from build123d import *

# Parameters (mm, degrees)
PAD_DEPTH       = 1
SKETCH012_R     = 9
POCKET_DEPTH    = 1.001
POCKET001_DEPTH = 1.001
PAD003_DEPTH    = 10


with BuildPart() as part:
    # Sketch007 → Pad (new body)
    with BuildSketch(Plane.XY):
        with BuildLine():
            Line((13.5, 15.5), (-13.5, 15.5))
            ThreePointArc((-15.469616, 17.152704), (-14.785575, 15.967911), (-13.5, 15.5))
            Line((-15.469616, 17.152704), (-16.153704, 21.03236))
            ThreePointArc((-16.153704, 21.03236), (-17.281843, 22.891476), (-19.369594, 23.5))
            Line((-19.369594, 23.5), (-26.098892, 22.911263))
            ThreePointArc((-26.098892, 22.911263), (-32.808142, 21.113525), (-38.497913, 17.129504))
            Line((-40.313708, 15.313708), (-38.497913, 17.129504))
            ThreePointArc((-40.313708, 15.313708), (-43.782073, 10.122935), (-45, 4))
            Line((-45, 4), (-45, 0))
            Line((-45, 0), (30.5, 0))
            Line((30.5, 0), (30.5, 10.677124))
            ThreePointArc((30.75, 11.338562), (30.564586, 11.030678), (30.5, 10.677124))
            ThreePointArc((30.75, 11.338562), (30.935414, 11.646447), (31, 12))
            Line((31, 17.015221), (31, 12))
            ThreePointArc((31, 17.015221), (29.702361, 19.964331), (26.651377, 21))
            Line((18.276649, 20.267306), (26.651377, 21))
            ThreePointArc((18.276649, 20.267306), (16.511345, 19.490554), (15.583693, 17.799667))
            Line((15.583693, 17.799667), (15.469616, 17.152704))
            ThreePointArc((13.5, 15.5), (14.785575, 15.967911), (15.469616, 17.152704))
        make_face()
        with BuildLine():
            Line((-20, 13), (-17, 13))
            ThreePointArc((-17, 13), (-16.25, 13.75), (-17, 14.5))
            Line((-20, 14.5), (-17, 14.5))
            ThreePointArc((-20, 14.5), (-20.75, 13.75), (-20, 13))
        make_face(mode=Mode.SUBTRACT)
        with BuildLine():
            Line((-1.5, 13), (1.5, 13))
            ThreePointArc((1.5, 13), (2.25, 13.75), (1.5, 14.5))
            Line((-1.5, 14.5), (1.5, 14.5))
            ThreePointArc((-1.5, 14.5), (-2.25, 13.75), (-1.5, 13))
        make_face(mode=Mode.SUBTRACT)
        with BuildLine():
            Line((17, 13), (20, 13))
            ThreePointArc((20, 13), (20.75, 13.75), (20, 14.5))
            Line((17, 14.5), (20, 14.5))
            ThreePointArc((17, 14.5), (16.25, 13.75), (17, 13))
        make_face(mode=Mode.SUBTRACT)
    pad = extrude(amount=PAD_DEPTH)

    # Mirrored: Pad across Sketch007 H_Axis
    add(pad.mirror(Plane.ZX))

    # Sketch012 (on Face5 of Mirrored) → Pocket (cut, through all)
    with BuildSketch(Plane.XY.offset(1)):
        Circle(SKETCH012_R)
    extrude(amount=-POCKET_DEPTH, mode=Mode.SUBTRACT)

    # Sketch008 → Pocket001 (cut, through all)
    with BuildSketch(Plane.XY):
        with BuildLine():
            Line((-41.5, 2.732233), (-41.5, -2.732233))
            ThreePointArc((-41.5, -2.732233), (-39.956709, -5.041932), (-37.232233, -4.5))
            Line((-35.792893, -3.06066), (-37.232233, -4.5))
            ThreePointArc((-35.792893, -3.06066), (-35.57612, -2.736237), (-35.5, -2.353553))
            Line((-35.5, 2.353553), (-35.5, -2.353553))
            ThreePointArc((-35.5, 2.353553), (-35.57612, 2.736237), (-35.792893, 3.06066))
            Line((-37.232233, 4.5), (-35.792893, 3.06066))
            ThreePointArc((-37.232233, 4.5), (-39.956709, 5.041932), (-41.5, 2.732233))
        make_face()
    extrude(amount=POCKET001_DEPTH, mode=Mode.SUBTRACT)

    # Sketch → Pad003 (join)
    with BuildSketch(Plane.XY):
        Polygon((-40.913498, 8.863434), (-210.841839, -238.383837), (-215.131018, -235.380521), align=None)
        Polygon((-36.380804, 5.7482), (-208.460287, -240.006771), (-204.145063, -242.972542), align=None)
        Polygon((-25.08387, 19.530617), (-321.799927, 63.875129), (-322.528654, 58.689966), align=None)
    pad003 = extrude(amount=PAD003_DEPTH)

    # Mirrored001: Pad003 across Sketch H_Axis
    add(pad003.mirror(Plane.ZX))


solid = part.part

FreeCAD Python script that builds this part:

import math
import FreeCAD as App
import Part
import Sketcher

V = App.Vector
Q = App.Units.Quantity

doc = App.newDocument("Part")
body = doc.addObject("PartDesign::Body", "Body")

# Sketch on XY plane
sketch1 = doc.addObject("Sketcher::SketchObject", "Sketch")
body.addObject(sketch1)
sketch1.AttachmentSupport = (doc.XY_Plane, [""])
sketch1.MapMode = "FlatFace"
sketch1.addGeometry(Part.LineSegment(V(13.5, 15.5, 0), V(-13.5, 15.5, 0)), False)
sketch1.addGeometry(Part.ArcOfCircle(Part.Circle(V(-13.5, 17.5, 0), V(0, 0, 1), 2), math.radians(-170), math.radians(-90)), False)
sketch1.addGeometry(Part.LineSegment(V(-15.5, 17.2, 0), V(-16.2, 21, 0)), False)
sketch1.addGeometry(Part.ArcOfCircle(Part.Circle(V(-19.1, 20.5, 0), V(0, 0, 1), 3), math.radians(10), math.radians(95)), False)
sketch1.addGeometry(Part.LineSegment(V(-19.4, 23.5, 0), V(-26.1, 22.9, 0)), False)
sketch1.addGeometry(Part.ArcOfCircle(Part.Circle(V(-24.4, 3, 0), V(0, 0, 1), 20), math.radians(95), math.radians(135)), False)
sketch1.addGeometry(Part.LineSegment(V(-38.5, 17.1, 0), V(-40.3, 15.3, 0)), False)
sketch1.addGeometry(Part.ArcOfCircle(Part.Circle(V(-29, 4, 0), V(0, 0, 1), 16), math.radians(135), math.radians(180)), False)
sketch1.addGeometry(Part.LineSegment(V(-45, 4, 0), V(-45, 0, 0)), False)
sketch1.addGeometry(Part.LineSegment(V(-45, 0, 0), V(30.5, 0, 0)), False)
sketch1.addGeometry(Part.LineSegment(V(30.5, 0, 0), V(30.5, 10.7, 0)), False)
sketch1.addGeometry(Part.ArcOfCircle(Part.Circle(V(31.5, 10.7, 0), V(0, 0, 1), 1), math.radians(139), math.radians(180)), False)
sketch1.addGeometry(Part.ArcOfCircle(Part.Circle(V(30, 12, 0), V(0, 0, 1), 1), math.radians(-41), math.radians(0)), False)
sketch1.addGeometry(Part.LineSegment(V(31, 12, 0), V(31, 17, 0)), False)
sketch1.addGeometry(Part.ArcOfCircle(Part.Circle(V(27, 17, 0), V(0, 0, 1), 4), math.radians(0), math.radians(95)), False)
sketch1.addGeometry(Part.LineSegment(V(26.7, 21, 0), V(18.3, 20.3, 0)), False)
sketch1.addGeometry(Part.ArcOfCircle(Part.Circle(V(18.5, 17.3, 0), V(0, 0, 1), 3), math.radians(95), math.radians(170)), False)
sketch1.addGeometry(Part.LineSegment(V(15.6, 17.8, 0), V(15.5, 17.2, 0)), False)
sketch1.addGeometry(Part.ArcOfCircle(Part.Circle(V(13.5, 17.5, 0), V(0, 0, 1), 2), math.radians(-90), math.radians(-10)), False)
sketch1.addGeometry(Part.LineSegment(V(-17, 13, 0), V(-20, 13, 0)), False)
sketch1.addGeometry(Part.ArcOfCircle(Part.Circle(V(-20, 13.8, 0), V(0, 0, 1), 0.8), math.radians(90), math.radians(270)), False)
sketch1.addGeometry(Part.LineSegment(V(-20, 14.5, 0), V(-17, 14.5, 0)), False)
sketch1.addGeometry(Part.ArcOfCircle(Part.Circle(V(-17, 13.8, 0), V(0, 0, 1), 0.8), math.radians(-90), math.radians(90)), False)
sketch1.addGeometry(Part.LineSegment(V(1.5, 13, 0), V(-1.5, 13, 0)), False)
sketch1.addGeometry(Part.ArcOfCircle(Part.Circle(V(-1.5, 13.8, 0), V(0, 0, 1), 0.8), math.radians(90), math.radians(270)), False)
sketch1.addGeometry(Part.LineSegment(V(-1.5, 14.5, 0), V(1.5, 14.5, 0)), False)
sketch1.addGeometry(Part.ArcOfCircle(Part.Circle(V(1.5, 13.8, 0), V(0, 0, 1), 0.8), math.radians(-90), math.radians(90)), False)
sketch1.addGeometry(Part.LineSegment(V(20, 13, 0), V(17, 13, 0)), False)
sketch1.addGeometry(Part.ArcOfCircle(Part.Circle(V(17, 13.8, 0), V(0, 0, 1), 0.8), math.radians(90), math.radians(270)), False)
sketch1.addGeometry(Part.LineSegment(V(17, 14.5, 0), V(20, 14.5, 0)), False)
sketch1.addGeometry(Part.ArcOfCircle(Part.Circle(V(20, 13.8, 0), V(0, 0, 1), 0.8), math.radians(-90), math.radians(90)), False)
sketch1.addConstraint(Sketcher.Constraint("Tangent", 0, 2, 1, 2))
sketch1.addConstraint(Sketcher.Constraint("Tangent", 1, 1, 2, 1))
sketch1.addConstraint(Sketcher.Constraint("Tangent", 2, 2, 3, 1))
sketch1.addConstraint(Sketcher.Constraint("Tangent", 3, 2, 4, 1))
sketch1.addConstraint(Sketcher.Constraint("Tangent", 4, 2, 5, 1))
sketch1.addConstraint(Sketcher.Constraint("Tangent", 5, 2, 6, 1))
sketch1.addConstraint(Sketcher.Constraint("Tangent", 6, 2, 7, 1))
sketch1.addConstraint(Sketcher.Constraint("Tangent", 7, 2, 8, 1))
sketch1.addConstraint(Sketcher.Constraint("Coincident", 8, 2, 9, 1))
sketch1.addConstraint(Sketcher.Constraint("Coincident", 9, 2, 10, 1))
sketch1.addConstraint(Sketcher.Constraint("Tangent", 10, 2, 11, 2))
sketch1.addConstraint(Sketcher.Constraint("Tangent", 11, 1, 12, 1))
sketch1.addConstraint(Sketcher.Constraint("Coincident", 12, 2, 13, 1))
sketch1.addConstraint(Sketcher.Constraint("Tangent", 13, 2, 14, 1))
sketch1.addConstraint(Sketcher.Constraint("Tangent", 14, 2, 15, 1))
sketch1.addConstraint(Sketcher.Constraint("Tangent", 15, 2, 16, 1))
sketch1.addConstraint(Sketcher.Constraint("Tangent", 16, 2, 17, 1))
sketch1.addConstraint(Sketcher.Constraint("Tangent", 17, 2, 18, 2))
sketch1.addConstraint(Sketcher.Constraint("Tangent", 18, 1, 0, 1))
sketch1.addConstraint(Sketcher.Constraint("Tangent", 19, 2, 20, 2))
sketch1.addConstraint(Sketcher.Constraint("Tangent", 20, 1, 21, 1))
sketch1.addConstraint(Sketcher.Constraint("Tangent", 21, 2, 22, 2))
sketch1.addConstraint(Sketcher.Constraint("Tangent", 22, 1, 19, 1))
sketch1.addConstraint(Sketcher.Constraint("Tangent", 23, 2, 24, 2))
sketch1.addConstraint(Sketcher.Constraint("Tangent", 24, 1, 25, 1))
sketch1.addConstraint(Sketcher.Constraint("Tangent", 25, 2, 26, 2))
sketch1.addConstraint(Sketcher.Constraint("Tangent", 26, 1, 23, 1))
sketch1.addConstraint(Sketcher.Constraint("Tangent", 27, 2, 28, 2))
sketch1.addConstraint(Sketcher.Constraint("Tangent", 28, 1, 29, 1))
sketch1.addConstraint(Sketcher.Constraint("Tangent", 29, 2, 30, 2))
sketch1.addConstraint(Sketcher.Constraint("Tangent", 30, 1, 27, 1))
sketch1.addConstraint(Sketcher.Constraint("Horizontal", 0))
sketch1.addConstraint(Sketcher.Constraint("Vertical", 8))
sketch1.addConstraint(Sketcher.Constraint("Horizontal", 9))
sketch1.addConstraint(Sketcher.Constraint("Vertical", 10))
sketch1.addConstraint(Sketcher.Constraint("Vertical", 13))
sketch1.addConstraint(Sketcher.Constraint("Horizontal", 19))
sketch1.addConstraint(Sketcher.Constraint("Horizontal", 21))
sketch1.addConstraint(Sketcher.Constraint("Horizontal", 23))
sketch1.addConstraint(Sketcher.Constraint("Horizontal", 25))
sketch1.addConstraint(Sketcher.Constraint("Horizontal", 27))
sketch1.addConstraint(Sketcher.Constraint("Horizontal", 29))
sketch1.addConstraint(Sketcher.Constraint("Equal", 3, 16))
sketch1.addConstraint(Sketcher.Constraint("Equal", 1, 18))
sketch1.addConstraint(Sketcher.Constraint("Equal", 22, 24))
sketch1.addConstraint(Sketcher.Constraint("Equal", 26, 28))
sketch1.addConstraint(Sketcher.Constraint("Symmetric", 22, 3, 28, 3, -2))
sketch1.addConstraint(Sketcher.Constraint("Symmetric", 1, 1, 17, 2, -2))
sketch1.addConstraint(Sketcher.Constraint("PointOnObject", 8, 2, -1))
sketch1.addConstraint(Sketcher.Constraint("Parallel", 4, 15))
sketch1.addConstraint(Sketcher.Constraint("Horizontal", 22, 3, 24, 3))
sketch1.addConstraint(Sketcher.Constraint("Equal", 21, 23))
sketch1.addConstraint(Sketcher.Constraint("Equal", 25, 27))
sketch1.addConstraint(Sketcher.Constraint("Radius", 1, Q("2.000001 mm")))
sketch1.addConstraint(Sketcher.Constraint("Radius", 3, Q("3 mm")))
sketch1.addConstraint(Sketcher.Constraint("Radius", 14, Q("3.999999 mm")))
sketch1.addConstraint(Sketcher.Constraint("DistanceX", 0, 2, 0, 1, Q("27 mm")))
sketch1.addConstraint(Sketcher.Constraint("DistanceX", 19, 2, 19, 1, Q("3 mm")))
sketch1.addConstraint(Sketcher.Constraint("DistanceY", 8, 2, 8, 1, Q("4 mm")))
sketch1.addConstraint(Sketcher.Constraint("Angle", 2, Q("100 deg")))
sketch1.addConstraint(Sketcher.Constraint("Angle", 4, Q("-175.000002 deg")))
sketch1.addConstraint(Sketcher.Constraint("Angle", 6, Q("-134.999984 deg")))
sketch1.addConstraint(Sketcher.Constraint("Radius", 20, Q("0.75 mm")))
sketch1.addConstraint(Sketcher.Constraint("DistanceX", 9, 1, 9, 2, Q("75.5 mm")))
sketch1.addConstraint(Sketcher.Constraint("DistanceX", -1, 1, 14, 3, Q("27.000001 mm")))
sketch1.addConstraint(Sketcher.Constraint("DistanceX", 20, 3, -1, 1, Q("20 mm")))
sketch1.addConstraint(Sketcher.Constraint("DistanceX", 7, 2, -1, 1, Q("45 mm")))
sketch1.addConstraint(Sketcher.Constraint("DistanceY", -1, 1, 12, 2, Q("12 mm")))
sketch1.addConstraint(Sketcher.Constraint("DistanceY", -1, 1, 14, 2, Q("21 mm")))
sketch1.addConstraint(Sketcher.Constraint("DistanceY", -1, 1, 19, 2, Q("13 mm")))
sketch1.addConstraint(Sketcher.Constraint("DistanceX", 1, 3, 11, 3, Q("45.000002 mm")))
sketch1.addConstraint(Sketcher.Constraint("DistanceY", 7, 3, 12, 3, Q("7.999999 mm")))
sketch1.addConstraint(Sketcher.Constraint("DistanceX", 1, 3, 24, 3, Q("12 mm")))
sketch1.addConstraint(Sketcher.Constraint("DistanceY", 1, 3, 3, 2, Q("5.999999 mm")))
sketch1.addConstraint(Sketcher.Constraint("DistanceY", 24, 1, 0, 2, Q("1 mm")))
sketch1.addConstraint(Sketcher.Constraint("DistanceX", -1, 1, 11, 1, Q("30.75 mm")))
sketch1.addConstraint(Sketcher.Constraint("Radius", 7, Q("15.99999 mm")))
sketch1.addConstraint(Sketcher.Constraint("Radius", 5, Q("19.999997 mm")))
pad1 = doc.addObject("PartDesign::Pad", "Pad")
body.addObject(pad1)
pad1.Profile = sketch1
pad1.Length = 1
doc.recompute()

mirrored = doc.addObject("PartDesign::Mirrored", "Mirrored")
body.addObject(mirrored)
mirrored.Originals = [pad1]
mirrored.MirrorPlane = (doc.XZ_Plane, [""])
body.Tip = mirrored

# Sketch on XY plane
sketch2 = doc.addObject("Sketcher::SketchObject", "Sketch001")
body.addObject(sketch2)
sketch2.AttachmentSupport = (doc.XY_Plane, [""])
sketch2.MapMode = "FlatFace"
sketch2.AttachmentOffset = App.Placement(V(0, 0, 1), App.Rotation())
sketch2.addGeometry(Part.Circle(V(0, 0, 0), V(0, 0, 1), 9), False)
sketch2.addConstraint(Sketcher.Constraint("Coincident", 0, 3, -1, 1))
sketch2.addConstraint(Sketcher.Constraint("Diameter", 0, Q("18 mm")))
pocket1 = doc.addObject("PartDesign::Pocket", "Pocket")
body.addObject(pocket1)
pocket1.Profile = sketch2
pocket1.Type = "ThroughAll"

# Sketch on XY plane
sketch3 = doc.addObject("Sketcher::SketchObject", "Sketch002")
body.addObject(sketch3)
sketch3.AttachmentSupport = (doc.XY_Plane, [""])
sketch3.MapMode = "FlatFace"
sketch3.addGeometry(Part.LineSegment(V(-41.5, 2.7, 0), V(-41.5, -2.7, 0)), False)
sketch3.addGeometry(Part.ArcOfCircle(Part.Circle(V(-39, -2.7, 0), V(0, 0, 1), 2.5), math.radians(180), math.radians(315)), False)
sketch3.addGeometry(Part.LineSegment(V(-37.2, -4.5, 0), V(-35.8, -3.1, 0)), False)
sketch3.addGeometry(Part.ArcOfCircle(Part.Circle(V(-36.5, -2.4, 0), V(0, 0, 1), 1), math.radians(-45), math.radians(0)), False)
sketch3.addGeometry(Part.LineSegment(V(-35.5, -2.4, 0), V(-35.5, 2.4, 0)), False)
sketch3.addGeometry(Part.ArcOfCircle(Part.Circle(V(-36.5, 2.4, 0), V(0, 0, 1), 1), math.radians(0), math.radians(45)), False)
sketch3.addGeometry(Part.LineSegment(V(-35.8, 3.1, 0), V(-37.2, 4.5, 0)), False)
sketch3.addGeometry(Part.ArcOfCircle(Part.Circle(V(-39, 2.7, 0), V(0, 0, 1), 2.5), math.radians(45), math.radians(180)), False)
sketch3.addConstraint(Sketcher.Constraint("Tangent", 0, 2, 1, 1))
sketch3.addConstraint(Sketcher.Constraint("Tangent", 1, 2, 2, 1))
sketch3.addConstraint(Sketcher.Constraint("Coincident", 2, 2, 3, 1))
sketch3.addConstraint(Sketcher.Constraint("Coincident", 3, 2, 4, 1))
sketch3.addConstraint(Sketcher.Constraint("Coincident", 4, 2, 5, 1))
sketch3.addConstraint(Sketcher.Constraint("Coincident", 5, 2, 6, 1))
sketch3.addConstraint(Sketcher.Constraint("Tangent", 6, 2, 7, 1))
sketch3.addConstraint(Sketcher.Constraint("Tangent", 7, 2, 0, 1))
sketch3.addConstraint(Sketcher.Constraint("Vertical", 0))
sketch3.addConstraint(Sketcher.Constraint("Vertical", 4))
sketch3.addConstraint(Sketcher.Constraint("Equal", 3, 5))
sketch3.addConstraint(Sketcher.Constraint("Equal", 1, 7))
sketch3.addConstraint(Sketcher.Constraint("Symmetric", 2, 2, 5, 2, -1))
sketch3.addConstraint(Sketcher.Constraint("Perpendicular", 2, 6))
sketch3.addConstraint(Sketcher.Constraint("Vertical", 1, 2, 6, 2))
sketch3.addConstraint(Sketcher.Constraint("Radius", 1, Q("2.5 mm")))
sketch3.addConstraint(Sketcher.Constraint("DistanceX", 1, 3, -1, 1, Q("39 mm")))
sketch3.addConstraint(Sketcher.Constraint("DistanceY", 1, 2, -1, 1, Q("4.5 mm")))
sketch3.addConstraint(Sketcher.Constraint("DistanceX", 3, 2, -1, 1, Q("35.5 mm")))
sketch3.addConstraint(Sketcher.Constraint("Radius", 3, Q("0.999994 mm")))
sketch3.addConstraint(Sketcher.Constraint("DistanceX", 3, 3, 2, 2, Q("0.707101 mm")))
sketch3.addConstraint(Sketcher.Constraint("DistanceY", 4, 1, 4, 2, Q("4.707106 mm")))
sketch3.addConstraint(Sketcher.Constraint("DistanceY", 1, 3, 3, 2, Q("0.37868 mm")))
pocket2 = doc.addObject("PartDesign::Pocket", "Pocket001")
body.addObject(pocket2)
pocket2.Profile = sketch3
pocket2.Type = "ThroughAll"
pocket2.Reversed = True

# Sketch on XY plane
sketch4 = doc.addObject("Sketcher::SketchObject", "Sketch003")
body.addObject(sketch4)
sketch4.AttachmentSupport = (doc.XY_Plane, [""])
sketch4.MapMode = "FlatFace"
sketch4.addGeometry(Part.LineSegment(V(-210.841839, -238.383837, 0), V(-40.913498, 8.863434, 0)), False)
sketch4.addGeometry(Part.LineSegment(V(-40.913498, 8.863434, 0), V(-215.131018, -235.380521, 0)), False)
sketch4.addGeometry(Part.LineSegment(V(-215.131018, -235.380521, 0), V(-210.841839, -238.383837, 0)), False)
sketch4.addGeometry(Part.LineSegment(V(-36.380804, 5.7482, 0), V(-208.460287, -240.006771, 0)), False)
sketch4.addGeometry(Part.LineSegment(V(-208.460287, -240.006771, 0), V(-204.145063, -242.972542, 0)), False)
sketch4.addGeometry(Part.LineSegment(V(-204.145063, -242.972542, 0), V(-36.380804, 5.7482, 0)), False)
sketch4.addGeometry(Part.LineSegment(V(-25.08387, 19.530617, 0), V(-321.799927, 63.875129, 0)), False)
sketch4.addGeometry(Part.LineSegment(V(-321.799927, 63.875129, 0), V(-322.528654, 58.689966, 0)), False)
sketch4.addGeometry(Part.LineSegment(V(-322.528654, 58.689966, 0), V(-25.08387, 19.530617, 0)), False)
sketch4.addConstraint(Sketcher.Constraint("Coincident", 0, 2, 1, 1))
sketch4.addConstraint(Sketcher.Constraint("Coincident", 1, 2, 2, 1))
sketch4.addConstraint(Sketcher.Constraint("Coincident", 2, 2, 0, 1))
sketch4.addConstraint(Sketcher.Constraint("Coincident", 3, 2, 4, 1))
sketch4.addConstraint(Sketcher.Constraint("Coincident", 4, 2, 5, 1))
sketch4.addConstraint(Sketcher.Constraint("Coincident", 5, 2, 3, 1))
sketch4.addConstraint(Sketcher.Constraint("Coincident", 6, 2, 7, 1))
sketch4.addConstraint(Sketcher.Constraint("Coincident", 7, 2, 8, 1))
sketch4.addConstraint(Sketcher.Constraint("Coincident", 8, 2, 6, 1))
sketch4.addConstraint(Sketcher.Constraint("DistanceY", -1, 1, 5, 2, Q("5.7482 mm")))
sketch4.addConstraint(Sketcher.Constraint("DistanceY", 3, 2, 6, 2, Q("303.8819 mm")))
sketch4.addConstraint(Sketcher.Constraint("Distance", 2, Q("5.236121 mm")))
sketch4.addConstraint(Sketcher.Constraint("Distance", 4, Q("5.23612 mm")))
sketch4.addConstraint(Sketcher.Constraint("Distance", 7, Q("5.236121 mm")))
sketch4.addConstraint(Sketcher.Constraint("DistanceX", 1, 2, -1, 1, Q("215.131018 mm")))
sketch4.addConstraint(Sketcher.Constraint("DistanceY", 1, 2, -1, 1, Q("235.380521 mm")))
sketch4.addConstraint(Sketcher.Constraint("DistanceX", 2, 2, -1, 1, Q("210.841839 mm")))
sketch4.addConstraint(Sketcher.Constraint("DistanceY", 3, 2, -1, 1, Q("240.006771 mm")))
sketch4.addConstraint(Sketcher.Constraint("DistanceY", 4, 2, -1, 1, Q("242.972542 mm")))
sketch4.addConstraint(Sketcher.Constraint("DistanceX", 8, 2, -1, 1, Q("25.08387 mm")))
sketch4.addConstraint(Sketcher.Constraint("DistanceX", 1, 2, 0, 2, Q("174.21752 mm")))
sketch4.addConstraint(Sketcher.Constraint("DistanceY", 2, 2, 0, 2, Q("247.247271 mm")))
sketch4.addConstraint(Sketcher.Constraint("DistanceX", 2, 2, 3, 2, Q("2.381552 mm")))
sketch4.addConstraint(Sketcher.Constraint("DistanceX", 4, 2, 5, 2, Q("167.764259 mm")))
sketch4.addConstraint(Sketcher.Constraint("DistanceX", 6, 2, 0, 2, Q("280.886429 mm")))
sketch4.addConstraint(Sketcher.Constraint("DistanceX", 7, 2, 5, 2, Q("286.14785 mm")))
sketch4.addConstraint(Sketcher.Constraint("DistanceY", 8, 2, 7, 2, Q("39.159349 mm")))
pad2 = doc.addObject("PartDesign::Pad", "Pad001")
body.addObject(pad2)
pad2.Profile = sketch4
pad2.Length = 10
doc.recompute()

mirrored2 = doc.addObject("PartDesign::Mirrored", "Mirrored001")
body.addObject(mirrored2)
mirrored2.Originals = [pad2]
mirrored2.MirrorPlane = (doc.XZ_Plane, [""])
body.Tip = mirrored2

doc.recompute()
